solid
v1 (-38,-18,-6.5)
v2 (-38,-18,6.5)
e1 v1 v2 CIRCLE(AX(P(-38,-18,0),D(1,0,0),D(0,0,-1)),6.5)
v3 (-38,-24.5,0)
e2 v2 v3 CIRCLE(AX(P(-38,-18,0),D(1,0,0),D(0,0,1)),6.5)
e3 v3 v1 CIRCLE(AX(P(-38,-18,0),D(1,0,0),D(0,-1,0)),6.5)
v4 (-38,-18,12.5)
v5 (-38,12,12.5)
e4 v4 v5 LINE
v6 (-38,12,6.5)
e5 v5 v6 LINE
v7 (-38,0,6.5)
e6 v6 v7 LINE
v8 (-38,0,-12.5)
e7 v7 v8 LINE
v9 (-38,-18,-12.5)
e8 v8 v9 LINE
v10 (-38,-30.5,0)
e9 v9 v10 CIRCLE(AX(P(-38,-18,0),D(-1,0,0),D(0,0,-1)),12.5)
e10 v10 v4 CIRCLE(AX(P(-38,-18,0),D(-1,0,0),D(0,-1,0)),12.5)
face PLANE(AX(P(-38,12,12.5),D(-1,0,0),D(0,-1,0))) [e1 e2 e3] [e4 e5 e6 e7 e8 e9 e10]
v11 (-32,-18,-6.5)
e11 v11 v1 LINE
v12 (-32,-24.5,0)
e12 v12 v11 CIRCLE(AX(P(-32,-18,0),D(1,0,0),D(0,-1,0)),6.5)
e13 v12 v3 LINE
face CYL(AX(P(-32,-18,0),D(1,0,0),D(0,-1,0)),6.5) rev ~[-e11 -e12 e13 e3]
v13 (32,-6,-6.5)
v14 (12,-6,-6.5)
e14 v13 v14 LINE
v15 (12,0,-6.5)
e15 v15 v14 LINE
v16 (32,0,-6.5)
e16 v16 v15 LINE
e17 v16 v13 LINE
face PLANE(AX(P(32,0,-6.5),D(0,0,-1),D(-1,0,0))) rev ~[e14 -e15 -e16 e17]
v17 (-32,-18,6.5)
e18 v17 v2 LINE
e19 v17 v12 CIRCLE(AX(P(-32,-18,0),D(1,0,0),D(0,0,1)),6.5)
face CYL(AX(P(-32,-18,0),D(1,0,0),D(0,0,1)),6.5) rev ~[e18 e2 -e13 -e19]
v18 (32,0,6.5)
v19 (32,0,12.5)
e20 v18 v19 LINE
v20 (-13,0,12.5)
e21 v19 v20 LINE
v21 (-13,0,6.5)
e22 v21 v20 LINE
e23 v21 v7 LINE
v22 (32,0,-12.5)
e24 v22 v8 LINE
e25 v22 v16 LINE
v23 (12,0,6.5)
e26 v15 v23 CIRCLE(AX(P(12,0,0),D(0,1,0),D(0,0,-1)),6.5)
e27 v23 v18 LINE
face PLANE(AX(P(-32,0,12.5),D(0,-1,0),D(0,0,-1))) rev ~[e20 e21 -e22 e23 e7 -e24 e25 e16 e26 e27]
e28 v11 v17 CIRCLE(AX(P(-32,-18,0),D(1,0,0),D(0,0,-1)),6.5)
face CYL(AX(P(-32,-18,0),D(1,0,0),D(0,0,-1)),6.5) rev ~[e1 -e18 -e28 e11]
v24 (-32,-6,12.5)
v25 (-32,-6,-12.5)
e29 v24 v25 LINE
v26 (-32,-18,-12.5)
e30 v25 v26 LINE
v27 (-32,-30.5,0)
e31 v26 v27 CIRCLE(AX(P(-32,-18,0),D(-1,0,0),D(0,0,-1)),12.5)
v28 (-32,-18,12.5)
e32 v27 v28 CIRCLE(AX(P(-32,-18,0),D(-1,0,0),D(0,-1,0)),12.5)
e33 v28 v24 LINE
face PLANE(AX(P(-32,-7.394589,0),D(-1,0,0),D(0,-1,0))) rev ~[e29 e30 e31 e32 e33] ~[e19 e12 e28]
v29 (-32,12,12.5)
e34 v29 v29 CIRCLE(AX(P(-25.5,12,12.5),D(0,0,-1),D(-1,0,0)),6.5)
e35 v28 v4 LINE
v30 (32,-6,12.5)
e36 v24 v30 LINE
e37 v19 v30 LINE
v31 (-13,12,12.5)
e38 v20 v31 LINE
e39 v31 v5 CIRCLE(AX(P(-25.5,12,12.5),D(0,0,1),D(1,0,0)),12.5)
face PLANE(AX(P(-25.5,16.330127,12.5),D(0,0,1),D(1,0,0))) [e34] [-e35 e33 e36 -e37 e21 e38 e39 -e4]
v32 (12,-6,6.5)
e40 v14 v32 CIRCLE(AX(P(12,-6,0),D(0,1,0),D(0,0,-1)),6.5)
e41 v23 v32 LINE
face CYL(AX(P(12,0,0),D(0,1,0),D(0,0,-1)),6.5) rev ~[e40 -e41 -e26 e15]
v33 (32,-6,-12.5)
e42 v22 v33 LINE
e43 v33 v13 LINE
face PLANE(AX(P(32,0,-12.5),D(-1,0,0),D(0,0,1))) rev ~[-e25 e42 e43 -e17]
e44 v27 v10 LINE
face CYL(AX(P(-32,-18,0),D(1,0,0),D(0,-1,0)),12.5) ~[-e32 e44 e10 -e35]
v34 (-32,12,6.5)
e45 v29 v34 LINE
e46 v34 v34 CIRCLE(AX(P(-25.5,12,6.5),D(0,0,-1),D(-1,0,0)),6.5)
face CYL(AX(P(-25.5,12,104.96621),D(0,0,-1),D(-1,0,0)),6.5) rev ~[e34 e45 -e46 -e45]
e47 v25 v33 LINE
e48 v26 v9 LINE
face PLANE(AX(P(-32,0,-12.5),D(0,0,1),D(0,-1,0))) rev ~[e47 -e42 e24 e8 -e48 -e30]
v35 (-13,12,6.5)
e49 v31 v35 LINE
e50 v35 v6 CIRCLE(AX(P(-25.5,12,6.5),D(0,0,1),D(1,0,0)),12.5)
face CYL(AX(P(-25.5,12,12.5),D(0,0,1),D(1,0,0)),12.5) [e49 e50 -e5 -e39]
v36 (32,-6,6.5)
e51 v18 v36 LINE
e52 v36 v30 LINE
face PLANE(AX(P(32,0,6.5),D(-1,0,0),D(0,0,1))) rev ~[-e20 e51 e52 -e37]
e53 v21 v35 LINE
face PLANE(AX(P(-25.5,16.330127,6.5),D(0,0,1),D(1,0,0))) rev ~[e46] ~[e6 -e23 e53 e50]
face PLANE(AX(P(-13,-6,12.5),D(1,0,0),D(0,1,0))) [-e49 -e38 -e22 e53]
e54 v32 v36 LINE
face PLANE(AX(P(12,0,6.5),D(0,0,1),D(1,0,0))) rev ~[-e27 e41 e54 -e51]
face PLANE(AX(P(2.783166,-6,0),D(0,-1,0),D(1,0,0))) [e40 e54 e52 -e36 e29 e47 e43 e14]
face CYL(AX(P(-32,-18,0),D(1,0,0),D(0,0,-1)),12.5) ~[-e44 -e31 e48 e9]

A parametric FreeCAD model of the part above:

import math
import FreeCAD as App
import Part
import Sketcher

doc = App.newDocument("Part")
body = doc.addObject("PartDesign::Body", "Body")

sketch1 = body.newObject("Sketcher::SketchObject", "Sketch")
sketch1.AttachmentSupport = (doc.getObject("XZ_Plane"), [""])
sketch1.MapMode = "FlatFace"
sketch1.addGeometry(Part.LineSegment(App.Vector(32, 6.5, 0), App.Vector(32, 12.5, 0)), False)
sketch1.addGeometry(Part.LineSegment(App.Vector(32, 12.5, 0), App.Vector(-32, 12.5, 0)), False)
sketch1.addGeometry(Part.LineSegment(App.Vector(-32, 12.5, 0), App.Vector(-32, -12.5, 0)), False)
sketch1.addGeometry(Part.LineSegment(App.Vector(-32, -12.5, 0), App.Vector(32, -12.5, 0)), False)
sketch1.addGeometry(Part.LineSegment(App.Vector(32, -12.5, 0), App.Vector(32, -6.5, 0)), False)
sketch1.addGeometry(Part.LineSegment(App.Vector(32, -6.5, 0), App.Vector(12, -6.5, 0)), False)
sketch1.addGeometry(Part.ArcOfCircle(Part.Circle(App.Vector(12, 0, 0), App.Vector(0, 0, 1), 6.5), math.radians(90), math.radians(270)), False)
sketch1.addGeometry(Part.LineSegment(App.Vector(12, 6.5, 0), App.Vector(32, 6.5, 0)), False)
sketch1.addConstraint(Sketcher.Constraint("Coincident", 0, 2, 1, 1))
sketch1.addConstraint(Sketcher.Constraint("Coincident", 1, 2, 2, 1))
sketch1.addConstraint(Sketcher.Constraint("Coincident", 2, 2, 3, 1))
sketch1.addConstraint(Sketcher.Constraint("Coincident", 3, 2, 4, 1))
sketch1.addConstraint(Sketcher.Constraint("Coincident", 4, 2, 5, 1))
sketch1.addConstraint(Sketcher.Constraint("Tangent", 5, 2, 6, 2))
sketch1.addConstraint(Sketcher.Constraint("Tangent", 6, 1, 7, 1))
sketch1.addConstraint(Sketcher.Constraint("Coincident", 7, 2, 0, 1))
sketch1.addConstraint(Sketcher.Constraint("Vertical", 0))
sketch1.addConstraint(Sketcher.Constraint("Horizontal", 1))
sketch1.addConstraint(Sketcher.Constraint("Vertical", 2))
sketch1.addConstraint(Sketcher.Constraint("Horizontal", 3))
sketch1.addConstraint(Sketcher.Constraint("Vertical", 4))
sketch1.addConstraint(Sketcher.Constraint("Horizontal", 5))
sketch1.addConstraint(Sketcher.Constraint("Horizontal", 7))
sketch1.addConstraint(Sketcher.Constraint("Symmetric", 0, 2, 2, 2, -1, 1))
sketch1.addConstraint(Sketcher.Constraint("Symmetric", 4, 2, 7, 2, -1))
sketch1.addConstraint(Sketcher.Constraint("Radius", 6, 6.5))
sketch1.addConstraint(Sketcher.Constraint("DistanceX", 1, 2, 1, 1, 64.0))
sketch1.addConstraint(Sketcher.Constraint("DistanceX", 5, 2, 5, 1, 20.0))
sketch1.addConstraint(Sketcher.Constraint("DistanceY", 0, 1, 0, 2, 6.0))
pad1 = body.newObject("PartDesign::Pad", "Pad")
pad1.Profile = sketch1
pad1.Length = 6

sketch2 = body.newObject("Sketcher::SketchObject", "Sketch001")
sketch2.AttachmentSupport = (doc.getObject("YZ_Plane"), [""])
sketch2.MapMode = "FlatFace"
sketch2.AttachmentOffset = App.Placement(App.Vector(0, 0, -32), App.Rotation())
sketch2.addGeometry(Part.LineSegment(App.Vector(-18, 12.5, 0), App.Vector(0, 12.5, 0)), False)
sketch2.addGeometry(Part.LineSegment(App.Vector(0, 12.5, 0), App.Vector(0, -12.5, 0)), False)
sketch2.addGeometry(Part.LineSegment(App.Vector(0, -12.5, 0), App.Vector(-18, -12.5, 0)), False)
sketch2.addGeometry(Part.ArcOfCircle(Part.Circle(App.Vector(-18, 0, 0), App.Vector(0, 0, 1), 12.5), math.radians(180), math.radians(270)), False)
sketch2.addGeometry(Part.ArcOfCircle(Part.Circle(App.Vector(-18, 0, 0), App.Vector(0, 0, 1), 12.5), math.radians(90), math.radians(180)), False)
sketch2.addGeometry(Part.ArcOfCircle(Part.Circle(App.Vector(-18, 0, 0), App.Vector(0, 0, 1), 6.5), math.radians(-90), math.radians(90)), False)
sketch2.addGeometry(Part.ArcOfCircle(Part.Circle(App.Vector(-18, 0, 0), App.Vector(0, 0, 1), 6.5), math.radians(90), math.radians(180)), False)
sketch2.addGeometry(Part.ArcOfCircle(Part.Circle(App.Vector(-18, 0, 0), App.Vector(0, 0, 1), 6.5), math.radians(180), math.radians(270)), False)
sketch2.addConstraint(Sketcher.Constraint("Coincident", 0, 2, 1, 1))
sketch2.addConstraint(Sketcher.Constraint("Coincident", 1, 2, 2, 1))
sketch2.addConstraint(Sketcher.Constraint("Tangent", 2, 2, 3, 2))
sketch2.addConstraint(Sketcher.Constraint("Tangent", 3, 1, 4, 2))
sketch2.addConstraint(Sketcher.Constraint("Tangent", 4, 1, 0, 1))
sketch2.addConstraint(Sketcher.Constraint("Tangent", 5, 2, 6, 1))
sketch2.addConstraint(Sketcher.Constraint("Tangent", 6, 2, 7, 1))
sketch2.addConstraint(Sketcher.Constraint("Tangent", 7, 2, 5, 1))
sketch2.addConstraint(Sketcher.Constraint("Horizontal", 0))
sketch2.addConstraint(Sketcher.Constraint("Vertical", 1))
sketch2.addConstraint(Sketcher.Constraint("Horizontal", 2))
sketch2.addConstraint(Sketcher.Constraint("Coincident", 5, 3, 3, 3))
sketch2.addConstraint(Sketcher.Constraint("Equal", 3, 4))
sketch2.addConstraint(Sketcher.Constraint("Symmetric", 0, 2, 1, 2, -1, 1))
sketch2.addConstraint(Sketcher.Constraint("PointOnObject", 3, 1, -1))
sketch2.addConstraint(Sketcher.Constraint("PointOnObject", 6, 2, -1))
sketch2.addConstraint(Sketcher.Constraint("Vertical", 4, 1, 5, 2))
sketch2.addConstraint(Sketcher.Constraint("Vertical", 5, 2, 7, 2))
sketch2.addConstraint(Sketcher.Constraint("Radius", 3, 12.5))
sketch2.addConstraint(Sketcher.Constraint("Radius", 5, 6.5))
sketch2.addConstraint(Sketcher.Constraint("DistanceX", 0, 1, 0, 2, 18.0))
pad2 = body.newObject("PartDesign::Pad", "Pad001")
pad2.Profile = sketch2
pad2.Length = 6
pad2.Reversed = True

sketch3 = body.newObject("Sketcher::SketchObject", "Sketch002")
sketch3.AttachmentSupport = (doc.getObject("XY_Plane"), [""])
sketch3.MapMode = "FlatFace"
sketch3.AttachmentOffset = App.Placement(App.Vector(0, 0, 12.5), App.Rotation())
sketch3.addGeometry(Part.ArcOfCircle(Part.Circle(App.Vector(-25.5, 12, 0), App.Vector(0, 0, 1), 12.5), math.radians(0), math.radians(180)), False)
sketch3.addGeometry(Part.LineSegment(App.Vector(-38, 12, 0), App.Vector(-38, -6, 0)), False)
sketch3.addGeometry(Part.LineSegment(App.Vector(-38, -6, 0), App.Vector(-13, -6, 0)), False)
sketch3.addGeometry(Part.LineSegment(App.Vector(-13, -6, 0), App.Vector(-13, 12, 0)), False)
sketch3.addConstraint(Sketcher.Constraint("Tangent", 0, 2, 1, 1))
sketch3.addConstraint(Sketcher.Constraint("Coincident", 1, 2, 2, 1))
sketch3.addConstraint(Sketcher.Constraint("Coincident", 2, 2, 3, 1))
sketch3.addConstraint(Sketcher.Constraint("Tangent", 3, 2, 0, 1))
sketch3.addConstraint(Sketcher.Constraint("Vertical", 1))
sketch3.addConstraint(Sketcher.Constraint("Horizontal", 2))
sketch3.addConstraint(Sketcher.Constraint("Vertical", 3))
sketch3.addConstraint(Sketcher.Constraint("Radius", 0, 12.5))
sketch3.addConstraint(Sketcher.Constraint("DistanceY", 1, 2, 1, 1, 18.0))
sketch3.addConstraint(Sketcher.Constraint("DistanceY", -1, 1, 0, 3, 12.0))
sketch3.addConstraint(Sketcher.Constraint("DistanceX", 0, 2, -1, 1, 38.0))
pad3 = body.newObject("PartDesign::Pad", "Pad002")
pad3.Profile = sketch3
pad3.Length = 6
pad3.Reversed = True

sketch4 = body.newObject("Sketcher::SketchObject", "Sketch003")
sketch4.AttachmentSupport = (doc.getObject("XY_Plane"), [""])
sketch4.MapMode = "FlatFace"
sketch4.AttachmentOffset = App.Placement(App.Vector(0, 0, 12.5), App.Rotation())
sketch4.addGeometry(Part.Circle(App.Vector(-25.5, 12, 0), App.Vector(0, 0, 1), 6.5), False)
sketch4.addConstraint(Sketcher.Constraint("Diameter", 0, 13.0))
sketch4.addConstraint(Sketcher.Constraint("DistanceY", -1, 1, 0, 3, 12.0))
sketch4.addConstraint(Sketcher.Constraint("DistanceX", 0, 3, -1, 1, 25.5))
doc.recompute()
hole = body.newObject("PartDesign::Hole", "Hole")
hole.Profile = sketch4
hole.ThreadType = "None"
hole.Diameter = 13
hole.DepthType = "ThroughAll"

doc.recompute()
